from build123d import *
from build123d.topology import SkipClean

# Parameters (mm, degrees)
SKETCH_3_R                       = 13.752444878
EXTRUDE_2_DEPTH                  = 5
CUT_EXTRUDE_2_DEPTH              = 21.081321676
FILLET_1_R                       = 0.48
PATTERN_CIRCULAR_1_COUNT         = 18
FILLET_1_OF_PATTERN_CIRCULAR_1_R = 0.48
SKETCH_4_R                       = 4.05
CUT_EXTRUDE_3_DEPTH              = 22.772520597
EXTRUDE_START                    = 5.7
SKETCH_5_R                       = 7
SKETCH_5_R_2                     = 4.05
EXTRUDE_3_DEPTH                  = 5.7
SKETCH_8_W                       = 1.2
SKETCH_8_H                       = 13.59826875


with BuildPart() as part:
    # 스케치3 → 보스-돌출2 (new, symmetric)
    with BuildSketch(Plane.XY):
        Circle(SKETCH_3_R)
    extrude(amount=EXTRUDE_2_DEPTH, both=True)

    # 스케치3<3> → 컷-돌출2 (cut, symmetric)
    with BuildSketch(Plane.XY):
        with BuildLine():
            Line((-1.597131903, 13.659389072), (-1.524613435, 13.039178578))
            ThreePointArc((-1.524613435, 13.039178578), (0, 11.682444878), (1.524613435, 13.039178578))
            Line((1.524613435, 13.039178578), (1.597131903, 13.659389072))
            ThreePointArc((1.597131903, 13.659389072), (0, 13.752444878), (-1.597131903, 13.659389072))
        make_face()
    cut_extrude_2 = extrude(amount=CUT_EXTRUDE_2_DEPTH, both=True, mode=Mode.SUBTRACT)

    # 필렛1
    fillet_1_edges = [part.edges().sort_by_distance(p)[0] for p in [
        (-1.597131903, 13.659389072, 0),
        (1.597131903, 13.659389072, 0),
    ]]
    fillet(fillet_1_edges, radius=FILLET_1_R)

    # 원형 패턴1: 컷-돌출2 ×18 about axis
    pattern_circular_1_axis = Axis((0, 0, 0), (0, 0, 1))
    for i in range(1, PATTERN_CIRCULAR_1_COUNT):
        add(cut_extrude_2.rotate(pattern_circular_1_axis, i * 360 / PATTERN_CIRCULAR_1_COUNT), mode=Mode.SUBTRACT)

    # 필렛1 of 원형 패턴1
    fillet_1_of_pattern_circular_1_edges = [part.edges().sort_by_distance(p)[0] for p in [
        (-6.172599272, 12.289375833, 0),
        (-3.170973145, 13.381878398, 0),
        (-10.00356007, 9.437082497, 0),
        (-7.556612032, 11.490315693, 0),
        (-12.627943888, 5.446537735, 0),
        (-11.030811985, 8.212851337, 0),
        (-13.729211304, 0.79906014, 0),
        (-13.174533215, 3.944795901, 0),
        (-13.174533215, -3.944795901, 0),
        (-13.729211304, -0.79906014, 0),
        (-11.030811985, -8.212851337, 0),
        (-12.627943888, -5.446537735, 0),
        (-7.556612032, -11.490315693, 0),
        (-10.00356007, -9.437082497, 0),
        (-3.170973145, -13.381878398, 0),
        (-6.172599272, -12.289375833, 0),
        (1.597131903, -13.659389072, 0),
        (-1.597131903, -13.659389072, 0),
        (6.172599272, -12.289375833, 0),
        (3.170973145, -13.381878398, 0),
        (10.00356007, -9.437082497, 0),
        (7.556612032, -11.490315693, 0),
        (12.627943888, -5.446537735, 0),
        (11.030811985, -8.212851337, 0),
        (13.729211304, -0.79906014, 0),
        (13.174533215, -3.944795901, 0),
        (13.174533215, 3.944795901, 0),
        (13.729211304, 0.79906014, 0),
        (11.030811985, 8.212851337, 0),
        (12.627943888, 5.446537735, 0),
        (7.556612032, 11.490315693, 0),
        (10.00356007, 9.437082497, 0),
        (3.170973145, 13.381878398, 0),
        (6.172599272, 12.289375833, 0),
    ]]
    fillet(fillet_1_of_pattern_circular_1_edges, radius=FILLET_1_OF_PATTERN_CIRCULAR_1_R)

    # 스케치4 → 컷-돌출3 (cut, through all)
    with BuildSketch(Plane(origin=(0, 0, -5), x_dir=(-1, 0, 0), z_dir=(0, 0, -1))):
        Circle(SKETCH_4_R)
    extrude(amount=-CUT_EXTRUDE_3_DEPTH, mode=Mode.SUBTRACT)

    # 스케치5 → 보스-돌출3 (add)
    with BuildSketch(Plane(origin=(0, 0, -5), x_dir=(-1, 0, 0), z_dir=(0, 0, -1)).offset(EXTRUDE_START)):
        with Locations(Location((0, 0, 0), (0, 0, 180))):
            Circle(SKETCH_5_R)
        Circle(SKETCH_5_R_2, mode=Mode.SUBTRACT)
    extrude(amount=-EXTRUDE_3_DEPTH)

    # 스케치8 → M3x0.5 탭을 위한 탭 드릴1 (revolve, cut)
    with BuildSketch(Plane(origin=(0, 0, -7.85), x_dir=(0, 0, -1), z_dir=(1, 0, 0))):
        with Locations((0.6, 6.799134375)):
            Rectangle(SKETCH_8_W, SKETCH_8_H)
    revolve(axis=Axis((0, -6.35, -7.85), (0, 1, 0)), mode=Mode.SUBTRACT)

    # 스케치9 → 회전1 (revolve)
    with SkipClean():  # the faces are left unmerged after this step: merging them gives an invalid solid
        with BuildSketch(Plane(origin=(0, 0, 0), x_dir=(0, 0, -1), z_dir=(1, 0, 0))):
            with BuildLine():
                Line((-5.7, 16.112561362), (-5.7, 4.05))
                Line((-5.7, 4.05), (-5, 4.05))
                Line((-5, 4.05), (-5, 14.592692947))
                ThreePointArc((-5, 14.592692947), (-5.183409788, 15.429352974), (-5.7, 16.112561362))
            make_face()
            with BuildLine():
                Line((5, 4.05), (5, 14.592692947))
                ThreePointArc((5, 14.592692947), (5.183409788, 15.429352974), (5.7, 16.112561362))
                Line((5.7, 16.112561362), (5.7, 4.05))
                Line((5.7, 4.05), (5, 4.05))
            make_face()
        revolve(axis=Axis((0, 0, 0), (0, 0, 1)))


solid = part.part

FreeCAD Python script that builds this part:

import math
import FreeCAD as App
import Part
import Sketcher

V = App.Vector


def edges_at(feature, points):
    """Names of the edges that pass closest to the given points."""
    edges = feature.Shape.Edges
    near = lambda p: min(range(len(edges)), key=lambda i: edges[i].distToShape(Part.Vertex(*p))[0])
    return sorted({f"Edge{near(p) + 1}" for p in points})

doc = App.newDocument("Part")
body = doc.addObject("PartDesign::Body", "Body")

sketch1 = body.newObject("Sketcher::SketchObject", "Sketch")
sketch1.AttachmentSupport = (doc.getObject("XY_Plane"), [""])
sketch1.MapMode = "FlatFace"
sketch1.addGeometry(Part.Circle(V(0, 0, 0), V(0, 0, 1), 13.752445), False)
sketch1.addConstraint(Sketcher.Constraint("Coincident", 0, 3, -1, 1))
sketch1.addConstraint(Sketcher.Constraint("Diameter", 0, 27.50489))
pad1 = body.newObject("PartDesign::Pad", "Pad")
pad1.Profile = sketch1
pad1.Length = 10
pad1.Midplane = True

sketch2 = body.newObject("Sketcher::SketchObject", "Sketch001")
sketch2.AttachmentSupport = (doc.getObject("XY_Plane"), [""])
sketch2.MapMode = "FlatFace"
sketch2.addGeometry(Part.LineSegment(V(-1.597132, 13.659389, 0), V(-1.524613, 13.039179, 0)), False)
sketch2.addGeometry(Part.ArcOfCircle(Part.Circle(V(0, 13.217445, 0), V(0, 0, 1), 1.535), math.radians(-173.33094), math.radians(-6.66906)), False)
sketch2.addGeometry(Part.LineSegment(V(1.524613, 13.039179, 0), V(1.597132, 13.659389, 0)), False)
sketch2.addGeometry(Part.ArcOfCircle(Part.Circle(V(0, 0, 0), V(0, 0, 1), 13.752445), math.radians(83.33094), math.radians(96.66906)), False)
sketch2.addConstraint(Sketcher.Constraint("Tangent", 0, 2, 1, 1))
sketch2.addConstraint(Sketcher.Constraint("Tangent", 1, 2, 2, 1))
sketch2.addConstraint(Sketcher.Constraint("Coincident", 2, 2, 3, 1))
sketch2.addConstraint(Sketcher.Constraint("Coincident", 3, 2, 0, 1))
sketch2.addConstraint(Sketcher.Constraint("Coincident", 3, 3, -1, 1))
sketch2.addConstraint(Sketcher.Constraint("Symmetric", 0, 2, 1, 2, -2))
sketch2.addConstraint(Sketcher.Constraint("Radius", 1, 1.535))
sketch2.addConstraint(Sketcher.Constraint("Radius", 3, 13.752445))
sketch2.addConstraint(Sketcher.Constraint("DistanceY", -1, 1, 0, 2, 13.039179))
sketch2.addConstraint(Sketcher.Constraint("DistanceX", -1, 1, 2, 2, 1.597132))
pocket1 = body.newObject("PartDesign::Pocket", "Pocket")
pocket1.Profile = sketch2
pocket1.Length = 42.162643
pocket1.Midplane = True
doc.recompute()

fillet = body.newObject("PartDesign::Fillet", "Fillet")
fillet.Base = (pocket1, edges_at(pocket1, [(-1.597, 13.659, 0), (1.597, 13.659, 0)]))
fillet.Radius = 0.48
doc.recompute()

polarpattern = body.newObject("PartDesign::PolarPattern", "PolarPattern")
polarpattern.Originals = [pocket1]
polarpattern.Axis = (doc.getObject("Z_Axis"), [""])
polarpattern.Angle = 360
polarpattern.Occurrences = 18
body.Tip = polarpattern
doc.recompute()

fillet2 = body.newObject("PartDesign::Fillet", "Fillet001")
fillet2.Base = (polarpattern, edges_at(polarpattern, [
    (-6.173, 12.289, 0),
    (-3.171, 13.382, 0),
    (-10.004, 9.437, 0),
    (-7.557, 11.49, 0),
    (-12.628, 5.447, 0),
    (-11.031, 8.213, 0),
    (-13.729, 0.799, 0),
    (-13.175, 3.945, 0),
    (-13.175, -3.945, 0),
    (-13.729, -0.799, 0),
    (-11.031, -8.213, 0),
    (-12.628, -5.447, 0),
    (-7.557, -11.49, 0),
    (-10.004, -9.437, 0),
    (-3.171, -13.382, 0),
    (-6.173, -12.289, 0),
    (1.597, -13.659, 0),
    (-1.597, -13.659, 0),
    (6.173, -12.289, 0),
    (3.171, -13.382, 0),
    (10.004, -9.437, 0),
    (7.557, -11.49, 0),
    (12.628, -5.447, 0),
    (11.031, -8.213, 0),
    (13.729, -0.799, 0),
    (13.175, -3.945, 0),
    (13.175, 3.945, 0),
    (13.729, 0.799, 0),
    (11.031, 8.213, 0),
    (12.628, 5.447, 0),
    (7.557, 11.49, 0),
    (10.004, 9.437, 0),
    (3.171, 13.382, 0),
    (6.173, 12.289, 0),
]))
fillet2.Radius = 0.48

sketch3 = body.newObject("Sketcher::SketchObject", "Sketch002")
sketch3.AttachmentSupport = (doc.getObject("XY_Plane"), [""])
sketch3.MapMode = "FlatFace"
sketch3.AttachmentOffset = App.Placement(V(0, 0, -5), App.Rotation())
sketch3.addGeometry(Part.Circle(V(0, 0, 0), V(0, 0, 1), 4.05), False)
sketch3.addConstraint(Sketcher.Constraint("Coincident", 0, 3, -1, 1))
sketch3.addConstraint(Sketcher.Constraint("Diameter", 0, 8.1))
pocket2 = body.newObject("PartDesign::Pocket", "Pocket001")
pocket2.Profile = sketch3
pocket2.Type = "ThroughAll"
pocket2.Reversed = True

sketch4 = body.newObject("Sketcher::SketchObject", "Sketch003")
sketch4.AttachmentSupport = (doc.getObject("XY_Plane"), [""])
sketch4.MapMode = "FlatFace"
sketch4.AttachmentOffset = App.Placement(V(0, 0, -10.7), App.Rotation())
sketch4.addGeometry(Part.Circle(V(0, 0, 0), V(0, 0, 1), 7), False)
sketch4.addGeometry(Part.Circle(V(0, 0, 0), V(0, 0, 1), 4.05), False)
sketch4.addConstraint(Sketcher.Constraint("Coincident", 0, 3, -1, 1))
sketch4.addConstraint(Sketcher.Constraint("Coincident", 1, 3, -1, 1))
sketch4.addConstraint(Sketcher.Constraint("Diameter", 0, 14.0))
sketch4.addConstraint(Sketcher.Constraint("Diameter", 1, 8.1))
pad2 = body.newObject("PartDesign::Pad", "Pad001")
pad2.Profile = sketch4
pad2.Length = 5.7

sketch5 = body.newObject("Sketcher::SketchObject", "Sketch004")
sketch5.AttachmentSupport = (doc.getObject("YZ_Plane"), [""])
sketch5.MapMode = "FlatFace"
sketch5.addGeometry(Part.LineSegment(V(13.598269, -7.85, 0), V(0, -7.85, 0)), False)
sketch5.addGeometry(Part.LineSegment(V(0, -7.85, 0), V(0, -9.05, 0)), False)
sketch5.addGeometry(Part.LineSegment(V(0, -9.05, 0), V(13.598269, -9.05, 0)), False)
sketch5.addGeometry(Part.LineSegment(V(13.598269, -9.05, 0), V(13.598269, -7.85, 0)), False)
sketch5.addGeometry(Part.LineSegment(V(0, -7.85, 0), V(13.598269, -7.85, 0)), True)
sketch5.addConstraint(Sketcher.Constraint("Coincident", 0, 2, 1, 1))
sketch5.addConstraint(Sketcher.Constraint("Coincident", 1, 2, 2, 1))
sketch5.addConstraint(Sketcher.Constraint("Coincident", 2, 2, 3, 1))
sketch5.addConstraint(Sketcher.Constraint("Coincident", 3, 2, 0, 1))
sketch5.addConstraint(Sketcher.Constraint("Horizontal", 0))
sketch5.addConstraint(Sketcher.Constraint("Vertical", 1))
sketch5.addConstraint(Sketcher.Constraint("Horizontal", 2))
sketch5.addConstraint(Sketcher.Constraint("Vertical", 3))
sketch5.addConstraint(Sketcher.Constraint("Horizontal", 4))
sketch5.addConstraint(Sketcher.Constraint("Coincident", 4, 1, 0, 2))
sketch5.addConstraint(Sketcher.Constraint("PointOnObject", 0, 2, -2))
sketch5.addConstraint(Sketcher.Constraint("Vertical", 2, 2, 4, 2))
sketch5.addConstraint(Sketcher.Constraint("DistanceY", 1, 2, 1, 1, 1.2))
sketch5.addConstraint(Sketcher.Constraint("DistanceY", 0, 2, -1, 1, 7.85))
sketch5.addConstraint(Sketcher.Constraint("DistanceX", 0, 2, 0, 1, 13.598269))
groove = body.newObject("PartDesign::Groove", "Groove")
groove.Profile = sketch5
groove.ReferenceAxis = (sketch5, ["Axis0"])
groove.Angle = 360

sketch6 = body.newObject("Sketcher::SketchObject", "Sketch005")
sketch6.AttachmentSupport = (doc.getObject("YZ_Plane"), [""])
sketch6.MapMode = "FlatFace"
sketch6.addGeometry(Part.LineSegment(V(16.112561, 5.7, 0), V(4.05, 5.7, 0)), False)
sketch6.addGeometry(Part.LineSegment(V(4.05, 5.7, 0), V(4.05, 5, 0)), False)
sketch6.addGeometry(Part.LineSegment(V(4.05, 5, 0), V(14.592693, 5, 0)), False)
sketch6.addGeometry(Part.ArcOfCircle(Part.Circle(V(14.592693, 7, 0), V(0, 0, 1), 2), math.radians(-90), math.radians(-40.541602)), False)
sketch6.addGeometry(Part.LineSegment(V(14.592693, -5, 0), V(4.05, -5, 0)), False)
sketch6.addGeometry(Part.LineSegment(V(4.05, -5, 0), V(4.05, -5.7, 0)), False)
sketch6.addGeometry(Part.LineSegment(V(4.05, -5.7, 0), V(16.112561, -5.7, 0)), False)
sketch6.addGeometry(Part.ArcOfCircle(Part.Circle(V(14.592693, -7, 0), V(0, 0, 1), 2), math.radians(40.541602), math.radians(90)), False)
sketch6.addConstraint(Sketcher.Constraint("Coincident", 0, 2, 1, 1))
sketch6.addConstraint(Sketcher.Constraint("Coincident", 1, 2, 2, 1))
sketch6.addConstraint(Sketcher.Constraint("Tangent", 2, 2, 3, 1))
sketch6.addConstraint(Sketcher.Constraint("Coincident", 3, 2, 0, 1))
sketch6.addConstraint(Sketcher.Constraint("Coincident", 4, 2, 5, 1))
sketch6.addConstraint(Sketcher.Constraint("Coincident", 5, 2, 6, 1))
sketch6.addConstraint(Sketcher.Constraint("Coincident", 6, 2, 7, 1))
sketch6.addConstraint(Sketcher.Constraint("Tangent", 7, 2, 4, 1))
sketch6.addConstraint(Sketcher.Constraint("Horizontal", 0))
sketch6.addConstraint(Sketcher.Constraint("Vertical", 1))
sketch6.addConstraint(Sketcher.Constraint("Horizontal", 2))
sketch6.addConstraint(Sketcher.Constraint("Horizontal", 4))
sketch6.addConstraint(Sketcher.Constraint("Vertical", 5))
sketch6.addConstraint(Sketcher.Constraint("Horizontal", 6))
sketch6.addConstraint(Sketcher.Constraint("Equal", 3, 7))
sketch6.addConstraint(Sketcher.Constraint("Symmetric", 3, 3, 7, 3, -1))
sketch6.addConstraint(Sketcher.Constraint("Symmetric", 0, 2, 5, 2, -1))
sketch6.addConstraint(Sketcher.Constraint("Radius", 3, 2.0))
sketch6.addConstraint(Sketcher.Constraint("DistanceY", 1, 2, 1, 1, 0.7))
sketch6.addConstraint(Sketcher.Constraint("DistanceY", -1, 1, 3, 3, 7.0))
sketch6.addConstraint(Sketcher.Constraint("DistanceX", -1, 1, 0, 2, 4.05))
sketch6.addConstraint(Sketcher.Constraint("DistanceX", 0, 2, 0, 1, 12.062561))
revolution = body.newObject("PartDesign::Revolution", "Revolution")
revolution.Profile = sketch6
revolution.ReferenceAxis = (sketch6, ["V_Axis"])
revolution.Angle = 360

doc.recompute()
